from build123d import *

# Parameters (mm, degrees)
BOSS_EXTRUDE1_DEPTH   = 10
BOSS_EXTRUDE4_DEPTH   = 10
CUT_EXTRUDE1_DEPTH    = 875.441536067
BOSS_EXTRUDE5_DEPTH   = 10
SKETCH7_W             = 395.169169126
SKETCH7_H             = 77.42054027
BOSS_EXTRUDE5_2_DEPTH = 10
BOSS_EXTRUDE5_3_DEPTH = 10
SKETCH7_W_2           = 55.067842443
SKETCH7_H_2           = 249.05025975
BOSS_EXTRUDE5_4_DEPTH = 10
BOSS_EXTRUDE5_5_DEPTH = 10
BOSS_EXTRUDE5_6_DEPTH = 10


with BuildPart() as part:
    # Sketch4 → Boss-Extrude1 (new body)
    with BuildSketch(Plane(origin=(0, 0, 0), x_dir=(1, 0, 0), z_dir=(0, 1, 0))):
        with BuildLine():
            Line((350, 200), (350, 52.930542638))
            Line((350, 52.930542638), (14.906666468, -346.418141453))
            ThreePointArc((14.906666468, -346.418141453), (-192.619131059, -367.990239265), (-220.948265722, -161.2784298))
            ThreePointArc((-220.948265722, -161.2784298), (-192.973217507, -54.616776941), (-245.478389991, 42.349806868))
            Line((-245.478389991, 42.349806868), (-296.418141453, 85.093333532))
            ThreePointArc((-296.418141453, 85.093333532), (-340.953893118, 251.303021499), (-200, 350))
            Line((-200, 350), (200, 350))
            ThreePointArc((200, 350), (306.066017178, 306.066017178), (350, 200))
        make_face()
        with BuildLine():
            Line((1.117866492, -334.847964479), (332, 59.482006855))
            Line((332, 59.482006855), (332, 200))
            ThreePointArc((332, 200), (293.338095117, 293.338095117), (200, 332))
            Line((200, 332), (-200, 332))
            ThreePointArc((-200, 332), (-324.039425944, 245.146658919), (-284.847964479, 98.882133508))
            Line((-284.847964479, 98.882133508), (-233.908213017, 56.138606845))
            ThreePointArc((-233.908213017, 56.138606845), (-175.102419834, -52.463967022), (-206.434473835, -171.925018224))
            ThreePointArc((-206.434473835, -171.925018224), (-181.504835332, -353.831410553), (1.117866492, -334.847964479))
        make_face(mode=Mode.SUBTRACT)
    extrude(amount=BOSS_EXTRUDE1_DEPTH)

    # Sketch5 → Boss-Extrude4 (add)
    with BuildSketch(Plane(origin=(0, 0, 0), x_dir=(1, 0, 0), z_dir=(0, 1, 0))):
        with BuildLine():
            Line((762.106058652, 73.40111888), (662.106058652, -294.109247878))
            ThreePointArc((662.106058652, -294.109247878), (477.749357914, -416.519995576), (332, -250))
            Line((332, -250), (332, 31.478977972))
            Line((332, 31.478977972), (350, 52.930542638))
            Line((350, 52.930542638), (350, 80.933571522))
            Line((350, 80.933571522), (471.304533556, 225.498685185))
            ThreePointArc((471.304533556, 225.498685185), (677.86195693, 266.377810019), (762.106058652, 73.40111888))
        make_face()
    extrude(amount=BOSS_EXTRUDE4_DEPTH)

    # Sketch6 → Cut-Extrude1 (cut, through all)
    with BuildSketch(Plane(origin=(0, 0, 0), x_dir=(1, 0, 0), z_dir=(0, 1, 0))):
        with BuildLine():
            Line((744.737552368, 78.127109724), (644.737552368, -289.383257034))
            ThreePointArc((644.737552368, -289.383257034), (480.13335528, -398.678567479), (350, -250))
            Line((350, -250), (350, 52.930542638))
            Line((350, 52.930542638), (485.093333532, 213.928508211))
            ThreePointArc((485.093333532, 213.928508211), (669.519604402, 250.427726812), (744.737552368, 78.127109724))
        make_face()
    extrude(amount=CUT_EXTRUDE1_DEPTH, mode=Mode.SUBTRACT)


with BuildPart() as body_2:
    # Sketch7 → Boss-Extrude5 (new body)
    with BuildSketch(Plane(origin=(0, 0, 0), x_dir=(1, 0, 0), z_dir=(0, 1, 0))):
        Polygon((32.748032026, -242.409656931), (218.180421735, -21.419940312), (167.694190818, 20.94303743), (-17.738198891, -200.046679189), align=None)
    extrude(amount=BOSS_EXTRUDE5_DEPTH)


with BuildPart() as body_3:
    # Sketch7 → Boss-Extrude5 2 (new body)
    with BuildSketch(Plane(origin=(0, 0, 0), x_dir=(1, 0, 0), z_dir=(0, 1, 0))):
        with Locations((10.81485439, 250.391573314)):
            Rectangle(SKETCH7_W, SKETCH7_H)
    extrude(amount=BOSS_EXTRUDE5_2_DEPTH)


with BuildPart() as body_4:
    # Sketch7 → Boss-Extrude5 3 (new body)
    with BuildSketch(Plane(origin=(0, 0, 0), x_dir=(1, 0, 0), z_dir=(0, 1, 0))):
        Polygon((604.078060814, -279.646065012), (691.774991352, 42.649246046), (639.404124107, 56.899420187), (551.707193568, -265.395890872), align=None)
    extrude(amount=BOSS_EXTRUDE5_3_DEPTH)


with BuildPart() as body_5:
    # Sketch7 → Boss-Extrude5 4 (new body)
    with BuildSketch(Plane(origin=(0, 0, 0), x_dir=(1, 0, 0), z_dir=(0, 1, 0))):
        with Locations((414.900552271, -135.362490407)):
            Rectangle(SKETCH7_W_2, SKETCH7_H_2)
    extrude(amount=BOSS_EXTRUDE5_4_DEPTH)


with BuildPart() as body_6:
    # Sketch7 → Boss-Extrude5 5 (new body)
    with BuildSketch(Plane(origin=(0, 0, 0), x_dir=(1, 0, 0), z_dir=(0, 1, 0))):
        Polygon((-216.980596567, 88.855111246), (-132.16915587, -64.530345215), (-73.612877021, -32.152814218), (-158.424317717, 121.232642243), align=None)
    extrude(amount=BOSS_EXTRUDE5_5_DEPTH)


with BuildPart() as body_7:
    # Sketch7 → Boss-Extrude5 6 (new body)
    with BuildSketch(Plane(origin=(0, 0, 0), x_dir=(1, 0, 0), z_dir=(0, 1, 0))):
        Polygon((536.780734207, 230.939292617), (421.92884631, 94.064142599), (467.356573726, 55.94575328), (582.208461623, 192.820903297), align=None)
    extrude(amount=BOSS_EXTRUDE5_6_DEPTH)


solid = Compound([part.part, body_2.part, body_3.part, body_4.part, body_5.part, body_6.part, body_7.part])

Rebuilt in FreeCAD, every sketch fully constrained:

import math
import FreeCAD as App
import Part
import Sketcher
Q = App.Units.Quantity


def add_polygon(sketch, points):
    """Adds a closed chain of lines whose ends are joined by coincident constraints."""
    first, n = sketch.GeometryCount, len(points)
    for a, b in zip(points, points[1:] + points[:1]):
        sketch.addGeometry(Part.LineSegment(App.Vector(*a, 0), App.Vector(*b, 0)), False)
    for i in range(n):
        sketch.addConstraint(Sketcher.Constraint("Coincident", first + i, 2, first + (i + 1) % n, 1))

doc = App.newDocument("Part")
body = doc.addObject("PartDesign::Body", "Body")

# Sketch on XZ plane
sketch1 = body.newObject("Sketcher::SketchObject", "Sketch")
sketch1.AttachmentSupport = (doc.getObject("XZ_Plane"), [""])
sketch1.MapMode = "FlatFace"
sketch1.addGeometry([
    Part.LineSegment(App.Vector(350, -52.930543, 0), App.Vector(350, -200, 0)),  # 0
    Part.ArcOfCircle(Part.Circle(App.Vector(200, -200, 0), App.Vector(0, 0, 1), 150), math.radians(-90), math.radians(0)),  # 1
    Part.LineSegment(App.Vector(200, -350, 0), App.Vector(-200, -350, 0)),  # 2
    Part.ArcOfCircle(Part.Circle(App.Vector(-200, -200, 0), App.Vector(0, 0, 1), 150), math.radians(130), math.radians(270)),  # 3
    Part.LineSegment(App.Vector(-296.418141, -85.093334, 0), App.Vector(-245.47839, -42.349807, 0)),  # 4
    Part.ArcOfCircle(Part.Circle(App.Vector(-341.896531, 72.55686, 0), App.Vector(0, 0, 1), 150), math.radians(-50), math.radians(36.2619)),  # 5
    Part.ArcOfCircle(Part.Circle(App.Vector(-100, 250, 0), App.Vector(0, 0, 1), 150), math.radians(40), math.radians(216.2619)),  # 6
    Part.LineSegment(App.Vector(14.906666, 346.418141, 0), App.Vector(350, -52.930543, 0)),  # 7
    Part.ArcOfCircle(Part.Circle(App.Vector(-100, 250, 0), App.Vector(0, 0, 1), 132), math.radians(40), math.radians(216.2619)),  # 8
    Part.ArcOfCircle(Part.Circle(App.Vector(-341.896531, 72.55686, 0), App.Vector(0, 0, 1), 168), math.radians(-50), math.radians(36.2619)),  # 9
    Part.LineSegment(App.Vector(-233.908213, -56.138607, 0), App.Vector(-284.847964, -98.882134, 0)),  # 10
    Part.ArcOfCircle(Part.Circle(App.Vector(-200, -200, 0), App.Vector(0, 0, 1), 132), math.radians(130), math.radians(270)),  # 11
    Part.LineSegment(App.Vector(-200, -332, 0), App.Vector(200, -332, 0)),  # 12
    Part.ArcOfCircle(Part.Circle(App.Vector(200, -200, 0), App.Vector(0, 0, 1), 132), math.radians(-90), math.radians(0)),  # 13
    Part.LineSegment(App.Vector(332, -200, 0), App.Vector(332, -59.482007, 0)),  # 14
    Part.LineSegment(App.Vector(332, -59.482007, 0), App.Vector(1.117866, 334.847964, 0)),  # 15
], False)
sketch1.addConstraint([
    Sketcher.Constraint("Tangent", 0, 2, 1, 2),
    Sketcher.Constraint("Tangent", 1, 1, 2, 1),
    Sketcher.Constraint("Tangent", 2, 2, 3, 2),
    Sketcher.Constraint("Tangent", 3, 1, 4, 1),
    Sketcher.Constraint("Tangent", 4, 2, 5, 1),
    Sketcher.Constraint("Tangent", 5, 2, 6, 2),
    Sketcher.Constraint("Tangent", 6, 1, 7, 1),
    Sketcher.Constraint("Coincident", 7, 2, 0, 1),
    Sketcher.Constraint("Tangent", 8, 2, 9, 2),
    Sketcher.Constraint("Tangent", 9, 1, 10, 1),
    Sketcher.Constraint("Tangent", 10, 2, 11, 1),
    Sketcher.Constraint("Tangent", 11, 2, 12, 1),
    Sketcher.Constraint("Tangent", 12, 2, 13, 1),
    Sketcher.Constraint("Tangent", 13, 2, 14, 1),
    Sketcher.Constraint("Coincident", 14, 2, 15, 1),
    Sketcher.Constraint("Tangent", 15, 2, 8, 1),
    Sketcher.Constraint("Vertical", 0),
    Sketcher.Constraint("Horizontal", 2),
    Sketcher.Constraint("Horizontal", 12),
    Sketcher.Constraint("Vertical", 14),
    Sketcher.Constraint("Coincident", 8, 3, 6, 3),
    Sketcher.Constraint("Coincident", 9, 3, 5, 3),
    Sketcher.Constraint("Coincident", 11, 3, 3, 3),
    Sketcher.Constraint("Coincident", 13, 3, 1, 3),
    Sketcher.Constraint("Equal", 1, 3),
    Sketcher.Constraint("Equal", 3, 5),
    Sketcher.Constraint("Equal", 5, 6),
    Sketcher.Constraint("Equal", 8, 11),
    Sketcher.Constraint("Perpendicular", 4, 7),
    Sketcher.Constraint("Perpendicular", 10, 15),
    Sketcher.Constraint("Radius", 1, 150.0),
    Sketcher.Constraint("Radius", 8, 132.0),
    Sketcher.Constraint("DistanceX", 2, 2, 2, 1, 400.0),
    Sketcher.Constraint("Angle", 4, Q("40 deg")),
    Sketcher.Constraint("DistanceX", -1, 1, 1, 3, 200.0),
    Sketcher.Constraint("DistanceY", 1, 3, -1, 1, 200.0),
    Sketcher.Constraint("DistanceX", 6, 3, -1, 1, 100.0),
    Sketcher.Constraint("DistanceY", -1, 1, 6, 3, 250.0),
])
pad1 = body.newObject("PartDesign::Pad", "Pad")
pad1.Profile = sketch1
pad1.Length = 10
pad1.Reversed = True

# Sketch on XZ plane
sketch2 = body.newObject("Sketcher::SketchObject", "Sketch001")
sketch2.AttachmentSupport = (doc.getObject("XZ_Plane"), [""])
sketch2.MapMode = "FlatFace"
sketch2.addGeometry([
    Part.LineSegment(App.Vector(662.106059, 294.109248, 0), App.Vector(762.106059, -73.401119, 0)),  # 0
    Part.ArcOfCircle(Part.Circle(App.Vector(600, -117.510367, 0), App.Vector(0, 0, 1), 168), math.radians(-140), math.radians(15.221724)),  # 1
    Part.LineSegment(App.Vector(471.304534, -225.498685, 0), App.Vector(350, -80.933572, 0)),  # 2
    Part.LineSegment(App.Vector(350, -80.933572, 0), App.Vector(350, -52.930543, 0)),  # 3
    Part.LineSegment(App.Vector(350, -52.930543, 0), App.Vector(332, -31.478978, 0)),  # 4
    Part.LineSegment(App.Vector(332, -31.478978, 0), App.Vector(332, 250, 0)),  # 5
    Part.ArcOfCircle(Part.Circle(App.Vector(500, 250, 0), App.Vector(0, 0, 1), 168), math.radians(15.221724), math.radians(180)),  # 6
], False)
sketch2.addConstraint([
    Sketcher.Constraint("Tangent", 0, 2, 1, 2),
    Sketcher.Constraint("Tangent", 1, 1, 2, 1),
    Sketcher.Constraint("Coincident", 2, 2, 3, 1),
    Sketcher.Constraint("Coincident", 3, 2, 4, 1),
    Sketcher.Constraint("Coincident", 4, 2, 5, 1),
    Sketcher.Constraint("Tangent", 5, 2, 6, 2),
    Sketcher.Constraint("Tangent", 6, 1, 0, 1),
    Sketcher.Constraint("Vertical", 3),
    Sketcher.Constraint("Vertical", 5),
    Sketcher.Constraint("Equal", 1, 6),
    Sketcher.Constraint("Parallel", 2, 4),
    Sketcher.Constraint("Radius", 1, 168.0),
    Sketcher.Constraint("Angle", 2, Q("130 deg")),
    Sketcher.Constraint("DistanceX", -1, 1, 1, 3, 600.0),
    Sketcher.Constraint("DistanceX", -1, 1, 6, 3, 500.0),
    Sketcher.Constraint("DistanceY", -1, 1, 6, 3, 250.0),
    Sketcher.Constraint("DistanceX", -1, 1, 2, 2, 350.0),
    Sketcher.Constraint("DistanceY", 3, 1, 3, 2, 28.003029),
    Sketcher.Constraint("Distance", 0, 380.872511),
])
pad2 = body.newObject("PartDesign::Pad", "Pad001")
pad2.Profile = sketch2
pad2.Length = 10
pad2.Reversed = True

# Sketch on XZ plane
sketch3 = body.newObject("Sketcher::SketchObject", "Sketch002")
sketch3.AttachmentSupport = (doc.getObject("XZ_Plane"), [""])
sketch3.MapMode = "FlatFace"
sketch3.addGeometry([
    Part.LineSegment(App.Vector(644.737552, 289.383257, 0), App.Vector(744.737552, -78.12711, 0)),  # 0
    Part.ArcOfCircle(Part.Circle(App.Vector(600, -117.510367, 0), App.Vector(0, 0, 1), 150), math.radians(-140), math.radians(15.221724)),  # 1
    Part.LineSegment(App.Vector(485.093334, -213.928508, 0), App.Vector(350, -52.930543, 0)),  # 2
    Part.LineSegment(App.Vector(350, -52.930543, 0), App.Vector(350, 250, 0)),  # 3
    Part.ArcOfCircle(Part.Circle(App.Vector(500, 250, 0), App.Vector(0, 0, 1), 150), math.radians(15.221724), math.radians(180)),  # 4
], False)
sketch3.addConstraint([
    Sketcher.Constraint("Tangent", 0, 2, 1, 2),
    Sketcher.Constraint("Tangent", 1, 1, 2, 1),
    Sketcher.Constraint("Coincident", 2, 2, 3, 1),
    Sketcher.Constraint("Tangent", 3, 2, 4, 2),
    Sketcher.Constraint("Tangent", 4, 1, 0, 1),
    Sketcher.Constraint("Vertical", 3),
    Sketcher.Constraint("Equal", 1, 4),
    Sketcher.Constraint("Radius", 1, 150.0),
    Sketcher.Constraint("Angle", 2, Q("130 deg")),
    Sketcher.Constraint("DistanceX", -1, 1, 1, 3, 600.0),
    Sketcher.Constraint("DistanceX", -1, 1, 4, 3, 500.0),
    Sketcher.Constraint("DistanceY", -1, 1, 4, 3, 250.0),
    Sketcher.Constraint("DistanceY", 2, 2, 4, 1, 342.3138),
])
pocket1 = body.newObject("PartDesign::Pocket", "Pocket")
pocket1.Profile = sketch3
pocket1.Type = "ThroughAll"
body2 = doc.addObject("PartDesign::Body", "Body001")

# Sketch on XZ plane
sketch4 = body2.newObject("Sketcher::SketchObject", "Sketch003")
sketch4.AttachmentSupport = (doc.getObject("XZ_Plane001"), [""])
sketch4.MapMode = "FlatFace"
add_polygon(sketch4, [(32.748032, 242.409657), (218.180422, 21.41994), (167.694191, -20.943037), (-17.738199, 200.046679)])  # lines 0-3
sketch4.addConstraint([
    Sketcher.Constraint("Perpendicular", 0, 1),
    Sketcher.Constraint("Perpendicular", 1, 2),
    Sketcher.Constraint("Perpendicular", 2, 3),
    Sketcher.Constraint("Angle", 0, Q("-50 deg")),
    Sketcher.Constraint("DistanceX", 2, 2, -1, 1, 17.738199),
    Sketcher.Constraint("DistanceX", -1, 1, 0, 2, 218.180422),
    Sketcher.Constraint("DistanceY", -1, 1, 0, 2, 21.41994),
    Sketcher.Constraint("DistanceX", -1, 1, 1, 2, 167.694191),
])
pad3 = body2.newObject("PartDesign::Pad", "Pad002")
pad3.Profile = sketch4
pad3.Length = 10
pad3.Reversed = True
body3 = doc.addObject("PartDesign::Body", "Body002")

# Sketch on XZ plane
sketch5 = body3.newObject("Sketcher::SketchObject", "Sketch004")
sketch5.AttachmentSupport = (doc.getObject("XZ_Plane002"), [""])
sketch5.MapMode = "FlatFace"
add_polygon(sketch5, [(-186.76973, -289.101843), (-186.76973, -211.681303), (208.399439, -211.681303), (208.399439, -289.101843)])  # lines 0-3
sketch5.addConstraint([
    Sketcher.Constraint("Vertical", 0),
    Sketcher.Constraint("Horizontal", 1),
    Sketcher.Constraint("Vertical", 2),
    Sketcher.Constraint("Horizontal", 3),
    Sketcher.Constraint("DistanceX", 1, 1, 1, 2, 395.169169),
    Sketcher.Constraint("DistanceY", 0, 1, 0, 2, 77.42054),
    Sketcher.Constraint("DistanceX", 0, 2, -1, 1, 186.76973),
    Sketcher.Constraint("DistanceY", 0, 2, -1, 1, 211.681303),
])
pad4 = body3.newObject("PartDesign::Pad", "Pad003")
pad4.Profile = sketch5
pad4.Length = 10
pad4.Reversed = True
body4 = doc.addObject("PartDesign::Body", "Body003")

# Sketch on XZ plane
sketch6 = body4.newObject("Sketcher::SketchObject", "Sketch005")
sketch6.AttachmentSupport = (doc.getObject("XZ_Plane003"), [""])
sketch6.MapMode = "FlatFace"
add_polygon(sketch6, [(604.078061, 279.646065), (691.774991, -42.649246), (639.404124, -56.89942), (551.707194, 265.395891)])  # lines 0-3
sketch6.addConstraint([
    Sketcher.Constraint("Perpendicular", 0, 1),
    Sketcher.Constraint("Perpendicular", 1, 2),
    Sketcher.Constraint("Perpendicular", 2, 3),
    Sketcher.Constraint("Distance", 0, 334.013501),
    Sketcher.Constraint("DistanceX", -1, 1, 0, 2, 691.774991),
    Sketcher.Constraint("DistanceY", 1, 2, -1, 1, 56.89942),
    Sketcher.Constraint("DistanceY", -1, 1, 2, 2, 265.395891),
    Sketcher.Constraint("Distance", 1, 54.274996),
])
pad5 = body4.newObject("PartDesign::Pad", "Pad004")
pad5.Profile = sketch6
pad5.Length = 10
pad5.Reversed = True
body5 = doc.addObject("PartDesign::Body", "Body004")

# Sketch on XZ plane
sketch7 = body5.newObject("Sketcher::SketchObject", "Sketch006")
sketch7.AttachmentSupport = (doc.getObject("XZ_Plane004"), [""])
sketch7.MapMode = "FlatFace"
add_polygon(sketch7, [(387.366631, 10.837361), (387.366631, 259.88762), (442.434473, 259.88762), (442.434473, 10.837361)])  # lines 0-3
sketch7.addConstraint([
    Sketcher.Constraint("Vertical", 0),
    Sketcher.Constraint("Horizontal", 1),
    Sketcher.Constraint("Vertical", 2),
    Sketcher.Constraint("Horizontal", 3),
    Sketcher.Constraint("DistanceY", 0, 1, 0, 2, 249.05026),
    Sketcher.Constraint("DistanceX", 1, 1, 1, 2, 55.067842),
    Sketcher.Constraint("DistanceX", -1, 1, 0, 2, 387.366631),
    Sketcher.Constraint("DistanceY", -1, 1, 0, 2, 259.88762),
])
pad6 = body5.newObject("PartDesign::Pad", "Pad005")
pad6.Profile = sketch7
pad6.Length = 10
pad6.Reversed = True
body6 = doc.addObject("PartDesign::Body", "Body005")

# Sketch on XZ plane
sketch8 = body6.newObject("Sketcher::SketchObject", "Sketch007")
sketch8.AttachmentSupport = (doc.getObject("XZ_Plane005"), [""])
sketch8.MapMode = "FlatFace"
add_polygon(sketch8, [(-216.980597, -88.855111), (-132.169156, 64.530345), (-73.612877, 32.152814), (-158.424318, -121.232642)])  # lines 0-3
sketch8.addConstraint([
    Sketcher.Constraint("Perpendicular", 0, 1),
    Sketcher.Constraint("Perpendicular", 1, 2),
    Sketcher.Constraint("Perpendicular", 2, 3),
    Sketcher.Constraint("Distance", 1, 66.911451),
    Sketcher.Constraint("DistanceY", 3, 2, -1, 1, 88.855111),
    Sketcher.Constraint("DistanceX", 0, 2, 1, 2, 58.556279),
    Sketcher.Constraint("DistanceX", 2, 2, 1, 2, 84.811441),
    Sketcher.Constraint("DistanceX", 0, 2, -1, 1, 132.169156),
])
pad7 = body6.newObject("PartDesign::Pad", "Pad006")
pad7.Profile = sketch8
pad7.Length = 10
pad7.Reversed = True
body7 = doc.addObject("PartDesign::Body", "Body006")

# Sketch on XZ plane
sketch9 = body7.newObject("Sketcher::SketchObject", "Sketch008")
sketch9.AttachmentSupport = (doc.getObject("XZ_Plane006"), [""])
sketch9.MapMode = "FlatFace"
add_polygon(sketch9, [(536.780734, -230.939293), (421.928846, -94.064143), (467.356574, -55.945753), (582.208462, -192.820903)])  # lines 0-3
sketch9.addConstraint([
    Sketcher.Constraint("Perpendicular", 0, 1),
    Sketcher.Constraint("Perpendicular", 1, 2),
    Sketcher.Constraint("Perpendicular", 2, 3),
    Sketcher.Constraint("Angle", 0, Q("130 deg")),
    Sketcher.Constraint("Distance", 0, 178.677819),
    Sketcher.Constraint("DistanceX", -1, 1, 2, 2, 582.208462),
    Sketcher.Constraint("DistanceY", 0, 2, 1, 2, 38.118389),
    Sketcher.Constraint("DistanceY", 0, 2, -1, 1, 94.064143),
])
pad8 = body7.newObject("PartDesign::Pad", "Pad007")
pad8.Profile = sketch9
pad8.Length = 10
pad8.Reversed = True

doc.recompute()
